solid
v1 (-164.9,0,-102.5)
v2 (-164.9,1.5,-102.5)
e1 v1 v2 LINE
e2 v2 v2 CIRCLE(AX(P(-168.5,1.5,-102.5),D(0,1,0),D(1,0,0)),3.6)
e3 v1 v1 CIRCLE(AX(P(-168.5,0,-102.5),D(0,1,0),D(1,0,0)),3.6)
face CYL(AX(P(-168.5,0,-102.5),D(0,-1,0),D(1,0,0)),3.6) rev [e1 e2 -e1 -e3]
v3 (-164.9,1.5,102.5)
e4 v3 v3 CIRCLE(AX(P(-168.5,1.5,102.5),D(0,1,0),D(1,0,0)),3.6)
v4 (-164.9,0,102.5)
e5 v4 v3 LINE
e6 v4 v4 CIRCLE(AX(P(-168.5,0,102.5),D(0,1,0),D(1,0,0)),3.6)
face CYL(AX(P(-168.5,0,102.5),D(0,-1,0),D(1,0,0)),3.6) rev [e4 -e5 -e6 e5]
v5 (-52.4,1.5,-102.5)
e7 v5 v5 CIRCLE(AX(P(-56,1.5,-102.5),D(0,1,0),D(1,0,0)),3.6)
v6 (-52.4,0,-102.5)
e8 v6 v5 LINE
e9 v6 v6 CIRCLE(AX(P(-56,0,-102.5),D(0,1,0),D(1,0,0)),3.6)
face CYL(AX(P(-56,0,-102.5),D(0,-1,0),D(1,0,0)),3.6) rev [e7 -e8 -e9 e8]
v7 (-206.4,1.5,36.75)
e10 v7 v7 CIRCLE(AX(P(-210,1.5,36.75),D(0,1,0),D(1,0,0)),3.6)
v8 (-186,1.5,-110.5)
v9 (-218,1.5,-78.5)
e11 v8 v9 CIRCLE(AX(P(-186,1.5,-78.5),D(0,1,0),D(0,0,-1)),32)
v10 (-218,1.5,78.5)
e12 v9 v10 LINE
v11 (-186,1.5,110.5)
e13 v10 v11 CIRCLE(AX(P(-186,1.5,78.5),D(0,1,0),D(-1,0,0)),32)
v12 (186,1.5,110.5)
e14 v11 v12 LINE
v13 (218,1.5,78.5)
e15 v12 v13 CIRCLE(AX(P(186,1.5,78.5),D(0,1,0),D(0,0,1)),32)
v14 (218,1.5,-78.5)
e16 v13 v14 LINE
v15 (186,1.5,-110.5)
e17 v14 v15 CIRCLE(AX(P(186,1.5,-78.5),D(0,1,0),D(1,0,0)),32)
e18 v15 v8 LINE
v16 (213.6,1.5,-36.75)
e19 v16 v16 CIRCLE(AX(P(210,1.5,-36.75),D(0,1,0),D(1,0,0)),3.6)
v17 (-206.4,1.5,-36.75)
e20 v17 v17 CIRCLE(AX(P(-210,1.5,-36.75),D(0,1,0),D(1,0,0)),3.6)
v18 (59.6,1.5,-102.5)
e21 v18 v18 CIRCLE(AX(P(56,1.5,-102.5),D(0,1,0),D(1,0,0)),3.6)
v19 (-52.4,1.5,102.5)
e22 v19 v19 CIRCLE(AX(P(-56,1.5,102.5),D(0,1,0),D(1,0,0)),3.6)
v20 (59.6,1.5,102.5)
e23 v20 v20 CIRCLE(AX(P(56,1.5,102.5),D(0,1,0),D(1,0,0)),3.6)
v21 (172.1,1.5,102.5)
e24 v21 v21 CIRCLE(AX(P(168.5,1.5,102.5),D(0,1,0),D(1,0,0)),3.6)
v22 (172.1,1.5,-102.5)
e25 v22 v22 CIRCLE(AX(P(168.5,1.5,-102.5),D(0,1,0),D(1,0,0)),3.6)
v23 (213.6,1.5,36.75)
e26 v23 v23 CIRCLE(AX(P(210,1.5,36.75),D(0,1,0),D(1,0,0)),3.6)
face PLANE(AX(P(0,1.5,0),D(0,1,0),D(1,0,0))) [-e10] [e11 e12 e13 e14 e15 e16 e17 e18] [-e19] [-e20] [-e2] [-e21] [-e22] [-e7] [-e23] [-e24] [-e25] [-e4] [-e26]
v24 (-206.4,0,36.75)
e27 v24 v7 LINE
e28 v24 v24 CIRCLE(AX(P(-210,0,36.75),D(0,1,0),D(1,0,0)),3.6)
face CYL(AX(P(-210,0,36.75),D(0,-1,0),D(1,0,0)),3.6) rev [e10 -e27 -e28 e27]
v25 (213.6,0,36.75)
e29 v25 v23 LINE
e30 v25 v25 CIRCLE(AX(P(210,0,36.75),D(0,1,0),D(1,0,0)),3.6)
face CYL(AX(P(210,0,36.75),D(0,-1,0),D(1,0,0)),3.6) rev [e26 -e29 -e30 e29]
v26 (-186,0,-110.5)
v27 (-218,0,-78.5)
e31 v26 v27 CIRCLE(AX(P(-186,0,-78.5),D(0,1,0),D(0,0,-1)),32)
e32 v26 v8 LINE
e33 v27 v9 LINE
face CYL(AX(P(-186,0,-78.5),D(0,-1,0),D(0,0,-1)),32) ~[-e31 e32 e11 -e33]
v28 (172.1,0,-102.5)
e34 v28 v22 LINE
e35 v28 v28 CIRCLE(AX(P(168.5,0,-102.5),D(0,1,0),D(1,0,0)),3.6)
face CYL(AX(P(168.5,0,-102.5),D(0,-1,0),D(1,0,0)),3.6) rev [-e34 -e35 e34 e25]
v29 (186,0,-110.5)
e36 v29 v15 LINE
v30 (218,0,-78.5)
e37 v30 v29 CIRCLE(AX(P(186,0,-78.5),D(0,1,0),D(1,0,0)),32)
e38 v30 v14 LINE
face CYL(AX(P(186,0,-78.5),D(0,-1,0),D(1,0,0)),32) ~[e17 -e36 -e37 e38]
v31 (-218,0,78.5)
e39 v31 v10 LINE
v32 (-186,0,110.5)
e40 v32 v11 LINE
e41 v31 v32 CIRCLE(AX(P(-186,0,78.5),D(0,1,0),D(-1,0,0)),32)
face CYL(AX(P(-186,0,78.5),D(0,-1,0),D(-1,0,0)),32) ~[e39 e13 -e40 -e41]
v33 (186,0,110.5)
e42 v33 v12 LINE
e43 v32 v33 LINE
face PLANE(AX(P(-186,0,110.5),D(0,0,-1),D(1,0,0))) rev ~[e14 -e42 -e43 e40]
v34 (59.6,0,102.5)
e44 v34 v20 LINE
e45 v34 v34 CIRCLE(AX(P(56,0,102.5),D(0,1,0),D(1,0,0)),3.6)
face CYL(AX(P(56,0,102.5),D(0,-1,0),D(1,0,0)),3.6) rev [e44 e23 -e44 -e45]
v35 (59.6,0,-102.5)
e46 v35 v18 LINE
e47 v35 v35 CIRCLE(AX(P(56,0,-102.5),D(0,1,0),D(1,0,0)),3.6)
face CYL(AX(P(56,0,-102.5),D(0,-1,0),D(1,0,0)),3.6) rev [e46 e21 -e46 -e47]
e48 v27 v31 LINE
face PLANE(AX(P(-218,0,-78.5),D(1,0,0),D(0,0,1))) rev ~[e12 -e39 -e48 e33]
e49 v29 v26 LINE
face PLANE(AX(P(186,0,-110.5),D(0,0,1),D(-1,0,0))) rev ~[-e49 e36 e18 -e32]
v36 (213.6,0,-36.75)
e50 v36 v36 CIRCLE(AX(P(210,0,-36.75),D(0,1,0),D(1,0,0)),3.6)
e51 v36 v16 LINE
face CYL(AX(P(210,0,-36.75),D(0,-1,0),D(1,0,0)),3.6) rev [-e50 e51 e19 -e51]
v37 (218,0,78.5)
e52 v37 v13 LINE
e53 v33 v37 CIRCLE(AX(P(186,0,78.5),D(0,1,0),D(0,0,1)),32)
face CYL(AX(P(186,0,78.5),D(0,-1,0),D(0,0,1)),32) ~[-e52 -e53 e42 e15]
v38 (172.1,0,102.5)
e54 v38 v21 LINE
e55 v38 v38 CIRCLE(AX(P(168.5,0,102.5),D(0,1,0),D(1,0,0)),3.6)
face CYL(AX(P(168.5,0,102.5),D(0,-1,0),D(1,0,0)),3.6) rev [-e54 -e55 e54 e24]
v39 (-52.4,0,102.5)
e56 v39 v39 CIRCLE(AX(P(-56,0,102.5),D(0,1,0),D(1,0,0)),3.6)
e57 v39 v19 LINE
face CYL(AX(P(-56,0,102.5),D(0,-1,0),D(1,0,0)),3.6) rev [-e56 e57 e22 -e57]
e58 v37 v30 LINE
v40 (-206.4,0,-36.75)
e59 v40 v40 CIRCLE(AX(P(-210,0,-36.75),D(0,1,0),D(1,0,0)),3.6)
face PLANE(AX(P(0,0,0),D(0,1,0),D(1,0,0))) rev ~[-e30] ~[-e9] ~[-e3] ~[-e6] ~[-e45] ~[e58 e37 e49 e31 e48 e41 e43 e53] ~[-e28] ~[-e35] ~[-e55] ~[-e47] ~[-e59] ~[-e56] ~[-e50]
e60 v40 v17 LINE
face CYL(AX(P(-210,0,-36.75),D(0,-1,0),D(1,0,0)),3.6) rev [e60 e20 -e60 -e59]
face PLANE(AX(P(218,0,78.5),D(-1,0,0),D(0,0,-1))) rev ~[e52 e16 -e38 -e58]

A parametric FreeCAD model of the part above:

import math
import FreeCAD as App
import Part
import Sketcher

doc = App.newDocument("Part")
params = doc.addObject("Spreadsheet::Sheet", "Params")
for row, (alias, value) in enumerate([
    ("sketch1_radius", "32 mm"),
    ("sketch1_diameter", "7.2 mm"),
    ("sketch1_width", "372 mm"),
    ("sketch1_height", "157 mm"),
    ("pad1_length", "1.5 mm"),
], start=1):
    params.set(f"A{row}", alias)
    params.set(f"B{row}", "=" + value)
    params.setAlias(f"B{row}", alias)

body = doc.addObject("PartDesign::Body", "Body")

# Sketch on XZ plane
sketch1 = body.newObject("Sketcher::SketchObject", "Sketch")
sketch1.AttachmentSupport = (doc.getObject("XZ_Plane"), [""])
sketch1.MapMode = "FlatFace"
sketch1.addGeometry([
    Part.LineSegment(App.Vector(-218, -78.5, 0), App.Vector(-218, 78.5, 0)),  # 0
    Part.ArcOfCircle(Part.Circle(App.Vector(-186, 78.5, 0), App.Vector(0, 0, 1), 32), math.radians(90), math.radians(180)),  # 1
    Part.LineSegment(App.Vector(-186, 110.5, 0), App.Vector(186, 110.5, 0)),  # 2
    Part.ArcOfCircle(Part.Circle(App.Vector(186, 78.5, 0), App.Vector(0, 0, 1), 32), math.radians(0), math.radians(90)),  # 3
    Part.LineSegment(App.Vector(218, 78.5, 0), App.Vector(218, -78.5, 0)),  # 4
    Part.ArcOfCircle(Part.Circle(App.Vector(186, -78.5, 0), App.Vector(0, 0, 1), 32), math.radians(-90), math.radians(0)),  # 5
    Part.LineSegment(App.Vector(186, -110.5, 0), App.Vector(-186, -110.5, 0)),  # 6
    Part.ArcOfCircle(Part.Circle(App.Vector(-186, -78.5, 0), App.Vector(0, 0, 1), 32), math.radians(180), math.radians(270)),  # 7
    Part.Circle(App.Vector(-168.5, 102.5, 0), App.Vector(0, 0, 1), 3.6),  # 8
    Part.Circle(App.Vector(-56, 102.5, 0), App.Vector(0, 0, 1), 3.6),  # 9
    Part.Circle(App.Vector(-210, 36.8, 0), App.Vector(0, 0, 1), 3.6),  # 10
    Part.Circle(App.Vector(56, 102.5, 0), App.Vector(0, 0, 1), 3.6),  # 11
    Part.Circle(App.Vector(168.5, 102.5, 0), App.Vector(0, 0, 1), 3.6),  # 12
    Part.Circle(App.Vector(210, 36.8, 0), App.Vector(0, 0, 1), 3.6),  # 13
    Part.Circle(App.Vector(-210, -36.8, 0), App.Vector(0, 0, 1), 3.6),  # 14
    Part.Circle(App.Vector(-168.5, -102.5, 0), App.Vector(0, 0, 1), 3.6),  # 15
    Part.Circle(App.Vector(-56, -102.5, 0), App.Vector(0, 0, 1), 3.6),  # 16
    Part.Circle(App.Vector(210, -36.8, 0), App.Vector(0, 0, 1), 3.6),  # 17
    Part.Circle(App.Vector(56, -102.5, 0), App.Vector(0, 0, 1), 3.6),  # 18
    Part.Circle(App.Vector(168.5, -102.5, 0), App.Vector(0, 0, 1), 3.6),  # 19
], False)
sketch1.addConstraint([
    Sketcher.Constraint("Tangent", 0, 2, 1, 2),
    Sketcher.Constraint("Tangent", 1, 1, 2, 1),
    Sketcher.Constraint("Tangent", 2, 2, 3, 2),
    Sketcher.Constraint("Tangent", 3, 1, 4, 1),
    Sketcher.Constraint("Tangent", 4, 2, 5, 2),
    Sketcher.Constraint("Tangent", 5, 1, 6, 1),
    Sketcher.Constraint("Tangent", 6, 2, 7, 2),
    Sketcher.Constraint("Tangent", 7, 1, 0, 1),
    Sketcher.Constraint("Vertical", 0),
    Sketcher.Constraint("Horizontal", 2),
    Sketcher.Constraint("Vertical", 4),
    Sketcher.Constraint("Horizontal", 6),
    Sketcher.Constraint("Equal", 1, 3),
    Sketcher.Constraint("Equal", 3, 5),
    Sketcher.Constraint("Equal", 5, 7),
    Sketcher.Constraint("Equal", 8, 9),
    Sketcher.Constraint("Equal", 9, 10),
    Sketcher.Constraint("Equal", 10, 11),
    Sketcher.Constraint("Equal", 11, 12),
    Sketcher.Constraint("Equal", 12, 13),
    Sketcher.Constraint("Equal", 13, 14),
    Sketcher.Constraint("Equal", 14, 15),
    Sketcher.Constraint("Equal", 15, 16),
    Sketcher.Constraint("Equal", 16, 17),
    Sketcher.Constraint("Equal", 17, 18),
    Sketcher.Constraint("Equal", 18, 19),
    Sketcher.Constraint("Symmetric", 1, 3, 5, 3, -1, 1),
    Sketcher.Constraint("Symmetric", 13, 3, 14, 3, -1, 1),
    Sketcher.Constraint("Symmetric", 12, 3, 15, 3, -1, 1),
    Sketcher.Constraint("Symmetric", 11, 3, 16, 3, -1, 1),
    Sketcher.Constraint("Symmetric", 10, 3, 17, 3, -1, 1),
    Sketcher.Constraint("Symmetric", 9, 3, 18, 3, -1, 1),
    Sketcher.Constraint("Symmetric", 8, 3, 19, 3, -1, 1),
    Sketcher.Constraint("Symmetric", 9, 3, 11, 3, -2),
    Sketcher.Constraint("Symmetric", 8, 3, 12, 3, -2),
    Sketcher.Constraint("Symmetric", 10, 3, 13, 3, -2),
    Sketcher.Constraint("Horizontal", 8, 3, 9, 3),
    Sketcher.Constraint("Radius", 1, 32.0),
    Sketcher.Constraint("Diameter", 8, 7.2),
    Sketcher.Constraint("DistanceX", 2, 1, 2, 2, 372.0),
    Sketcher.Constraint("DistanceY", 0, 1, 0, 2, 157.0),
    Sketcher.Constraint("DistanceX", 9, 3, -1, 1, 56.0),
    Sketcher.Constraint("DistanceX", 10, 3, -1, 1, 210.0),
    Sketcher.Constraint("DistanceY", 1, 3, 8, 3, 24.0),
    Sketcher.Constraint("DistanceX", 8, 3, 12, 3, 337.0),
    Sketcher.Constraint("DistanceY", 14, 3, 10, 3, 73.5),
])
sketch1.setExpression("Constraints[37]", "Params.sketch1_radius")
sketch1.setExpression("Constraints[38]", "Params.sketch1_diameter")
sketch1.setExpression("Constraints[39]", "Params.sketch1_width")
sketch1.setExpression("Constraints[40]", "Params.sketch1_height")
pad1 = body.newObject("PartDesign::Pad", "Pad")
pad1.Profile = sketch1
pad1.setExpression("Length", "Params.pad1_length")
pad1.Reversed = True

doc.recompute()
